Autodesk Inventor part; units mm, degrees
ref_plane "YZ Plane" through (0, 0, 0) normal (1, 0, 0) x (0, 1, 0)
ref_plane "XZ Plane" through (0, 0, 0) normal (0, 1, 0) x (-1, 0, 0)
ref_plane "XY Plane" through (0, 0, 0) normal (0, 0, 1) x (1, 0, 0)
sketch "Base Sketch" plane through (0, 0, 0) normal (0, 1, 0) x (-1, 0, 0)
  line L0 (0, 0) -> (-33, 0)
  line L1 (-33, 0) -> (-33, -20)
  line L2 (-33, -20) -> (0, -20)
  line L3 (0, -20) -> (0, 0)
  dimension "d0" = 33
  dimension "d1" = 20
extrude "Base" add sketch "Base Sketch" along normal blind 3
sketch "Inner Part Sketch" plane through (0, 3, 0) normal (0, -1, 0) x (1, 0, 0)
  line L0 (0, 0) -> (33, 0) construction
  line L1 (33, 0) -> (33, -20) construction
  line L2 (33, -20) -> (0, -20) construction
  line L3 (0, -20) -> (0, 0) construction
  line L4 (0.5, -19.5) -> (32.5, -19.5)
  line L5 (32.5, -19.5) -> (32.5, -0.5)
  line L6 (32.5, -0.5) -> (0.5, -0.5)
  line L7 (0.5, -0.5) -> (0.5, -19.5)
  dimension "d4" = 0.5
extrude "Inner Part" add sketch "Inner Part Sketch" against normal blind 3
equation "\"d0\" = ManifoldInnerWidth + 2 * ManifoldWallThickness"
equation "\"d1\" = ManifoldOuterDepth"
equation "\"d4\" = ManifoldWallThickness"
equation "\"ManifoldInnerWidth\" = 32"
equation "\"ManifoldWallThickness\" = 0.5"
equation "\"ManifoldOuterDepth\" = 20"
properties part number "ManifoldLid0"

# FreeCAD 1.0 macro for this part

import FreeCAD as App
import Part
import Sketcher


def add_polygon(sketch, points):
    """Adds a closed chain of lines whose ends are joined by coincident constraints."""
    first, n = sketch.GeometryCount, len(points)
    for a, b in zip(points, points[1:] + points[:1]):
        sketch.addGeometry(Part.LineSegment(App.Vector(*a, 0), App.Vector(*b, 0)), False)
    for i in range(n):
        sketch.addConstraint(Sketcher.Constraint("Coincident", first + i, 2, first + (i + 1) % n, 1))

doc = App.newDocument("Part")
params = doc.addObject("Spreadsheet::Sheet", "Params")
for row, (alias, value) in enumerate([
    ("sketch1_width", "33 mm"),
    ("sketch1_height", "20 mm"),
    ("pad1_length", "3 mm"),
    ("sketch2_width", "32 mm"),
    ("sketch2_height", "19 mm"),
    ("pad2_length", "3 mm"),
], start=1):
    params.set(f"A{row}", alias)
    params.set(f"B{row}", "=" + value)
    params.setAlias(f"B{row}", alias)

body = doc.addObject("PartDesign::Body", "Body")

sketch1 = body.newObject("Sketcher::SketchObject", "Sketch")
sketch1.AttachmentSupport = (doc.getObject("XZ_Plane"), [""])
sketch1.MapMode = "FlatFace"
add_polygon(sketch1, [(0, -20), (0, 0), (33, 0), (33, -20)])
sketch1.addConstraint([
    Sketcher.Constraint("Vertical", 0),
    Sketcher.Constraint("Horizontal", 1),
    Sketcher.Constraint("Vertical", 2),
    Sketcher.Constraint("Horizontal", 3),
    Sketcher.Constraint("Coincident", 0, 2, -1, 1),
    Sketcher.Constraint("DistanceX", 1, 1, 1, 2, 33.0),
    Sketcher.Constraint("DistanceY", 0, 1, 0, 2, 20.0),
])
sketch1.setExpression("Constraints[9]", "Params.sketch1_width")
sketch1.setExpression("Constraints[10]", "Params.sketch1_height")
pad1 = body.newObject("PartDesign::Pad", "Pad")
pad1.Profile = sketch1
pad1.setExpression("Length", "Params.pad1_length")
pad1.Reversed = True

sketch2 = body.newObject("Sketcher::SketchObject", "Sketch001")
sketch2.AttachmentSupport = (doc.getObject("XZ_Plane"), [""])
sketch2.MapMode = "FlatFace"
sketch2.AttachmentOffset = App.Placement(App.Vector(0, 0, -3), App.Rotation())
add_polygon(sketch2, [(0, 0), (0, -20), (32, -20), (32, 0)])
sketch2.addConstraint([
    Sketcher.Constraint("Vertical", 0),
    Sketcher.Constraint("Horizontal", 1),
    Sketcher.Constraint("Vertical", 2),
    Sketcher.Constraint("Horizontal", 3),
    Sketcher.Constraint("DistanceX", -1, 1, 0, 2, 0.5),
    Sketcher.Constraint("DistanceY", 2, 2, -1, 1, 0.5),
    Sketcher.Constraint("DistanceX", 1, 1, 1, 2, 32.0),
    Sketcher.Constraint("DistanceY", 0, 2, 0, 1, 19.0),
])
sketch2.setExpression("Constraints[10]", "Params.sketch2_width")
sketch2.setExpression("Constraints[11]", "Params.sketch2_height")
pad2 = body.newObject("PartDesign::Pad", "Pad001")
pad2.Profile = sketch2
pad2.setExpression("Length", "Params.pad2_length")
pad2.Reversed = True

doc.recompute()
